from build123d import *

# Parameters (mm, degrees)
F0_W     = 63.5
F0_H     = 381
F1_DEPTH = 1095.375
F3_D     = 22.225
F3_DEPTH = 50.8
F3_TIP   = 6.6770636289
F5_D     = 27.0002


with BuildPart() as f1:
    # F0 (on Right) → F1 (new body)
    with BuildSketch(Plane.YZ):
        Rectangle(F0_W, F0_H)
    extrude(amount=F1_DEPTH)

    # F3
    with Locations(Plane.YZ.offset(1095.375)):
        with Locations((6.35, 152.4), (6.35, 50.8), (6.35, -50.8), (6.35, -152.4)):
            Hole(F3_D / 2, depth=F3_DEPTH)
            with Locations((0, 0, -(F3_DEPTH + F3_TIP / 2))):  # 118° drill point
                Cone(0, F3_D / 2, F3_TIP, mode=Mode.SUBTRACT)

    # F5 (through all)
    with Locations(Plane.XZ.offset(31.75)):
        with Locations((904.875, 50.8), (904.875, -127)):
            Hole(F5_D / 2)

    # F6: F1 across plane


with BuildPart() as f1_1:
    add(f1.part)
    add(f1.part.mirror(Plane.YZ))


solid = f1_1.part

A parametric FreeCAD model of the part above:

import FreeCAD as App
import Part
import Sketcher

V = App.Vector
Q = App.Units.Quantity

doc = App.newDocument("Part")
body = doc.addObject("PartDesign::Body", "Body")

# Sketch on YZ plane
sketch1 = body.newObject("Sketcher::SketchObject", "Sketch")
sketch1.AttachmentSupport = (doc.getObject("YZ_Plane"), [""])
sketch1.MapMode = "FlatFace"
sketch1.addGeometry(Part.LineSegment(V(-32, 190, 0), V(-32, -190, 0)), False)
sketch1.addGeometry(Part.LineSegment(V(-32, -190, 0), V(32, -190, 0)), False)
sketch1.addGeometry(Part.LineSegment(V(32, -190, 0), V(32, 190, 0)), False)
sketch1.addGeometry(Part.LineSegment(V(32, 190, 0), V(-32, 190, 0)), False)
sketch1.addConstraint(Sketcher.Constraint("Coincident", 0, 2, 1, 1))
sketch1.addConstraint(Sketcher.Constraint("Coincident", 1, 2, 2, 1))
sketch1.addConstraint(Sketcher.Constraint("Coincident", 2, 2, 3, 1))
sketch1.addConstraint(Sketcher.Constraint("Coincident", 3, 2, 0, 1))
sketch1.addConstraint(Sketcher.Constraint("Vertical", 0))
sketch1.addConstraint(Sketcher.Constraint("Horizontal", 1))
sketch1.addConstraint(Sketcher.Constraint("Vertical", 2))
sketch1.addConstraint(Sketcher.Constraint("Horizontal", 3))
sketch1.addConstraint(Sketcher.Constraint("Symmetric", 0, 2, 2, 2, -1, 1))
sketch1.addConstraint(Sketcher.Constraint("DistanceY", 0, 2, 0, 1, Q("15 in")))
sketch1.addConstraint(Sketcher.Constraint("DistanceX", 1, 1, 1, 2, Q("2.5 in")))
pad1 = body.newObject("PartDesign::Pad", "Pad")
pad1.Profile = sketch1
pad1.Length = Q("43.125 in")

# Sketch on YZ plane
sketch2 = body.newObject("Sketcher::SketchObject", "Sketch001")
sketch2.AttachmentSupport = (doc.getObject("YZ_Plane"), [""])
sketch2.MapMode = "FlatFace"
sketch2.AttachmentOffset = App.Placement(V(0, 0, 43.125 * 25.4), App.Rotation())
sketch2.addGeometry(Part.Circle(V(6, 152, 0), V(0, 0, 1), 11), False)
sketch2.addGeometry(Part.Circle(V(6, 51, 0), V(0, 0, 1), 11), False)
sketch2.addGeometry(Part.Circle(V(6, -51, 0), V(0, 0, 1), 11), False)
sketch2.addGeometry(Part.Circle(V(6, -152, 0), V(0, 0, 1), 11), False)
sketch2.addConstraint(Sketcher.Constraint("Equal", 0, 1))
sketch2.addConstraint(Sketcher.Constraint("Equal", 1, 2))
sketch2.addConstraint(Sketcher.Constraint("Equal", 2, 3))
sketch2.addConstraint(Sketcher.Constraint("Symmetric", 1, 3, 2, 3, -1))
sketch2.addConstraint(Sketcher.Constraint("Symmetric", 0, 3, 3, 3, -1))
sketch2.addConstraint(Sketcher.Constraint("Vertical", 0, 3, 1, 3))
sketch2.addConstraint(Sketcher.Constraint("Diameter", 0, Q("0.875 in")))
sketch2.addConstraint(Sketcher.Constraint("DistanceY", -1, 1, 0, 3, Q("6 in")))
sketch2.addConstraint(Sketcher.Constraint("DistanceY", -1, 1, 1, 3, Q("2 in")))
sketch2.addConstraint(Sketcher.Constraint("DistanceX", -1, 1, 0, 3, Q("0.25 in")))
doc.recompute()
hole = body.newObject("PartDesign::Hole", "Hole")
hole.Profile = sketch2
hole.ThreadType = "None"
hole.Diameter = Q("0.875 in")
hole.DepthType = "Dimension"
hole.Depth = Q("2 in")
hole.DrillPoint = "Angled"
hole.DrillPointAngle = 118

# Sketch on XZ plane
sketch3 = body.newObject("Sketcher::SketchObject", "Sketch002")
sketch3.AttachmentSupport = (doc.getObject("XZ_Plane"), [""])
sketch3.MapMode = "FlatFace"
sketch3.AttachmentOffset = App.Placement(V(0, 0, 1.25 * 25.4), App.Rotation())
sketch3.addGeometry(Part.Circle(V(905, 51, 0), V(0, 0, 1), 14), False)
sketch3.addGeometry(Part.Circle(V(905, -127, 0), V(0, 0, 1), 14), False)
sketch3.addConstraint(Sketcher.Constraint("Equal", 0, 1))
sketch3.addConstraint(Sketcher.Constraint("Vertical", 0, 3, 1, 3))
sketch3.addConstraint(Sketcher.Constraint("Diameter", 0, Q("1.063 in")))
sketch3.addConstraint(Sketcher.Constraint("DistanceY", -1, 1, 0, 3, Q("2 in")))
sketch3.addConstraint(Sketcher.Constraint("DistanceY", 1, 3, -1, 1, Q("5 in")))
sketch3.addConstraint(Sketcher.Constraint("DistanceX", -1, 1, 0, 3, Q("35.625 in")))
doc.recompute()
hole2 = body.newObject("PartDesign::Hole", "Hole001")
hole2.Profile = sketch3
hole2.ThreadType = "None"
hole2.Diameter = Q("1.063 in")
hole2.DepthType = "ThroughAll"
body2 = doc.addObject("PartDesign::Body", "Body001")
doc.recompute()

body2.BaseFeature = body
doc.recompute()

mirroring = doc.addObject("Part::Mirroring", "Mirroring")
mirroring.Source = body
mirroring.Base = V(0, 0, 0)
mirroring.Normal = V(1, 0, 0)
body3 = doc.addObject("PartDesign::Body", "Body002")
body3.BaseFeature = mirroring
boolean = body2.newObject("PartDesign::Boolean", "Boolean")
boolean.Type = "Fuse"
boolean.addObjects([body3])
doc.recompute()
mirroring.Visibility = False

doc.recompute()
